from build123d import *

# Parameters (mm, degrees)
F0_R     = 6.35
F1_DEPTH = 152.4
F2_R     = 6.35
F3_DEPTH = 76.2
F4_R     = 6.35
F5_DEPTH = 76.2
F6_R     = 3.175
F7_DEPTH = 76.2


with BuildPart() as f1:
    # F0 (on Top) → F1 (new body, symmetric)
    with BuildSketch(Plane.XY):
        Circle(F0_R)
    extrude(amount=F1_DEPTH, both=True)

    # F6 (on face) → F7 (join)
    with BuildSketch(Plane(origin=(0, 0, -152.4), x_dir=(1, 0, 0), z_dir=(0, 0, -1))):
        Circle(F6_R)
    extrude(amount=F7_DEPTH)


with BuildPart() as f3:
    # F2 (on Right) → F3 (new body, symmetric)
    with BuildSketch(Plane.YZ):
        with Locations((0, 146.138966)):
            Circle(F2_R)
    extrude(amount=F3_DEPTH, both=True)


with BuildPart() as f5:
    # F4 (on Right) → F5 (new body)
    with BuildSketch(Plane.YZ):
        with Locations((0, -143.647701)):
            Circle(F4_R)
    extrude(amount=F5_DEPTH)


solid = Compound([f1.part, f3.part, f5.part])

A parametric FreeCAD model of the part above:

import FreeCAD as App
import Part
import Sketcher

V = App.Vector
Q = App.Units.Quantity

doc = App.newDocument("Part")
body = doc.addObject("PartDesign::Body", "Body")

# Sketch on XY plane
sketch1 = body.newObject("Sketcher::SketchObject", "Sketch")
sketch1.AttachmentSupport = (doc.getObject("XY_Plane"), [""])
sketch1.MapMode = "FlatFace"
sketch1.addGeometry(Part.Circle(V(0, 0, 0), V(0, 0, 1), 6), False)
sketch1.addConstraint([
    Sketcher.Constraint("Coincident", 0, 3, -1, 1),
    Sketcher.Constraint("Diameter", 0, Q("0.5 in")),
])
pad1 = body.newObject("PartDesign::Pad", "Pad")
pad1.Profile = sketch1
pad1.Length = Q("12 in")
pad1.Midplane = True

# Sketch on XY plane
sketch2 = body.newObject("Sketcher::SketchObject", "Sketch001")
sketch2.AttachmentSupport = (doc.getObject("XY_Plane"), [""])
sketch2.MapMode = "FlatFace"
sketch2.AttachmentOffset = App.Placement(V(0, 0, -6 * 25.4), App.Rotation())
sketch2.addGeometry(Part.Circle(V(0, 0, 0), V(0, 0, 1), 3.2), False)
sketch2.addConstraint([
    Sketcher.Constraint("Coincident", 0, 3, -1, 1),
    Sketcher.Constraint("Diameter", 0, Q("0.25 in")),
])
pad2 = body.newObject("PartDesign::Pad", "Pad001")
pad2.Profile = sketch2
pad2.Length = Q("3 in")
pad2.Reversed = True
body2 = doc.addObject("PartDesign::Body", "Body001")

# Sketch on YZ plane
sketch3 = body2.newObject("Sketcher::SketchObject", "Sketch002")
sketch3.AttachmentSupport = (doc.getObject("YZ_Plane001"), [""])
sketch3.MapMode = "FlatFace"
sketch3.addGeometry(Part.Circle(V(0, 146, 0), V(0, 0, 1), 6), False)
sketch3.addConstraint([
    Sketcher.Constraint("PointOnObject", 0, 3, -2),
    Sketcher.Constraint("Diameter", 0, Q("0.5 in")),
    Sketcher.Constraint("DistanceY", -1, 1, 0, 3, 146.138966),
])
pad3 = body2.newObject("PartDesign::Pad", "Pad002")
pad3.Profile = sketch3
pad3.Length = Q("6 in")
pad3.Midplane = True
body3 = doc.addObject("PartDesign::Body", "Body002")

# Sketch on YZ plane
sketch4 = body3.newObject("Sketcher::SketchObject", "Sketch003")
sketch4.AttachmentSupport = (doc.getObject("YZ_Plane002"), [""])
sketch4.MapMode = "FlatFace"
sketch4.addGeometry(Part.Circle(V(0, -144, 0), V(0, 0, 1), 6), False)
sketch4.addConstraint([
    Sketcher.Constraint("PointOnObject", 0, 3, -2),
    Sketcher.Constraint("Diameter", 0, Q("0.5 in")),
    Sketcher.Constraint("DistanceY", 0, 3, -1, 1, 143.647701),
])
pad4 = body3.newObject("PartDesign::Pad", "Pad003")
pad4.Profile = sketch4
pad4.Length = Q("3 in")

doc.recompute()
